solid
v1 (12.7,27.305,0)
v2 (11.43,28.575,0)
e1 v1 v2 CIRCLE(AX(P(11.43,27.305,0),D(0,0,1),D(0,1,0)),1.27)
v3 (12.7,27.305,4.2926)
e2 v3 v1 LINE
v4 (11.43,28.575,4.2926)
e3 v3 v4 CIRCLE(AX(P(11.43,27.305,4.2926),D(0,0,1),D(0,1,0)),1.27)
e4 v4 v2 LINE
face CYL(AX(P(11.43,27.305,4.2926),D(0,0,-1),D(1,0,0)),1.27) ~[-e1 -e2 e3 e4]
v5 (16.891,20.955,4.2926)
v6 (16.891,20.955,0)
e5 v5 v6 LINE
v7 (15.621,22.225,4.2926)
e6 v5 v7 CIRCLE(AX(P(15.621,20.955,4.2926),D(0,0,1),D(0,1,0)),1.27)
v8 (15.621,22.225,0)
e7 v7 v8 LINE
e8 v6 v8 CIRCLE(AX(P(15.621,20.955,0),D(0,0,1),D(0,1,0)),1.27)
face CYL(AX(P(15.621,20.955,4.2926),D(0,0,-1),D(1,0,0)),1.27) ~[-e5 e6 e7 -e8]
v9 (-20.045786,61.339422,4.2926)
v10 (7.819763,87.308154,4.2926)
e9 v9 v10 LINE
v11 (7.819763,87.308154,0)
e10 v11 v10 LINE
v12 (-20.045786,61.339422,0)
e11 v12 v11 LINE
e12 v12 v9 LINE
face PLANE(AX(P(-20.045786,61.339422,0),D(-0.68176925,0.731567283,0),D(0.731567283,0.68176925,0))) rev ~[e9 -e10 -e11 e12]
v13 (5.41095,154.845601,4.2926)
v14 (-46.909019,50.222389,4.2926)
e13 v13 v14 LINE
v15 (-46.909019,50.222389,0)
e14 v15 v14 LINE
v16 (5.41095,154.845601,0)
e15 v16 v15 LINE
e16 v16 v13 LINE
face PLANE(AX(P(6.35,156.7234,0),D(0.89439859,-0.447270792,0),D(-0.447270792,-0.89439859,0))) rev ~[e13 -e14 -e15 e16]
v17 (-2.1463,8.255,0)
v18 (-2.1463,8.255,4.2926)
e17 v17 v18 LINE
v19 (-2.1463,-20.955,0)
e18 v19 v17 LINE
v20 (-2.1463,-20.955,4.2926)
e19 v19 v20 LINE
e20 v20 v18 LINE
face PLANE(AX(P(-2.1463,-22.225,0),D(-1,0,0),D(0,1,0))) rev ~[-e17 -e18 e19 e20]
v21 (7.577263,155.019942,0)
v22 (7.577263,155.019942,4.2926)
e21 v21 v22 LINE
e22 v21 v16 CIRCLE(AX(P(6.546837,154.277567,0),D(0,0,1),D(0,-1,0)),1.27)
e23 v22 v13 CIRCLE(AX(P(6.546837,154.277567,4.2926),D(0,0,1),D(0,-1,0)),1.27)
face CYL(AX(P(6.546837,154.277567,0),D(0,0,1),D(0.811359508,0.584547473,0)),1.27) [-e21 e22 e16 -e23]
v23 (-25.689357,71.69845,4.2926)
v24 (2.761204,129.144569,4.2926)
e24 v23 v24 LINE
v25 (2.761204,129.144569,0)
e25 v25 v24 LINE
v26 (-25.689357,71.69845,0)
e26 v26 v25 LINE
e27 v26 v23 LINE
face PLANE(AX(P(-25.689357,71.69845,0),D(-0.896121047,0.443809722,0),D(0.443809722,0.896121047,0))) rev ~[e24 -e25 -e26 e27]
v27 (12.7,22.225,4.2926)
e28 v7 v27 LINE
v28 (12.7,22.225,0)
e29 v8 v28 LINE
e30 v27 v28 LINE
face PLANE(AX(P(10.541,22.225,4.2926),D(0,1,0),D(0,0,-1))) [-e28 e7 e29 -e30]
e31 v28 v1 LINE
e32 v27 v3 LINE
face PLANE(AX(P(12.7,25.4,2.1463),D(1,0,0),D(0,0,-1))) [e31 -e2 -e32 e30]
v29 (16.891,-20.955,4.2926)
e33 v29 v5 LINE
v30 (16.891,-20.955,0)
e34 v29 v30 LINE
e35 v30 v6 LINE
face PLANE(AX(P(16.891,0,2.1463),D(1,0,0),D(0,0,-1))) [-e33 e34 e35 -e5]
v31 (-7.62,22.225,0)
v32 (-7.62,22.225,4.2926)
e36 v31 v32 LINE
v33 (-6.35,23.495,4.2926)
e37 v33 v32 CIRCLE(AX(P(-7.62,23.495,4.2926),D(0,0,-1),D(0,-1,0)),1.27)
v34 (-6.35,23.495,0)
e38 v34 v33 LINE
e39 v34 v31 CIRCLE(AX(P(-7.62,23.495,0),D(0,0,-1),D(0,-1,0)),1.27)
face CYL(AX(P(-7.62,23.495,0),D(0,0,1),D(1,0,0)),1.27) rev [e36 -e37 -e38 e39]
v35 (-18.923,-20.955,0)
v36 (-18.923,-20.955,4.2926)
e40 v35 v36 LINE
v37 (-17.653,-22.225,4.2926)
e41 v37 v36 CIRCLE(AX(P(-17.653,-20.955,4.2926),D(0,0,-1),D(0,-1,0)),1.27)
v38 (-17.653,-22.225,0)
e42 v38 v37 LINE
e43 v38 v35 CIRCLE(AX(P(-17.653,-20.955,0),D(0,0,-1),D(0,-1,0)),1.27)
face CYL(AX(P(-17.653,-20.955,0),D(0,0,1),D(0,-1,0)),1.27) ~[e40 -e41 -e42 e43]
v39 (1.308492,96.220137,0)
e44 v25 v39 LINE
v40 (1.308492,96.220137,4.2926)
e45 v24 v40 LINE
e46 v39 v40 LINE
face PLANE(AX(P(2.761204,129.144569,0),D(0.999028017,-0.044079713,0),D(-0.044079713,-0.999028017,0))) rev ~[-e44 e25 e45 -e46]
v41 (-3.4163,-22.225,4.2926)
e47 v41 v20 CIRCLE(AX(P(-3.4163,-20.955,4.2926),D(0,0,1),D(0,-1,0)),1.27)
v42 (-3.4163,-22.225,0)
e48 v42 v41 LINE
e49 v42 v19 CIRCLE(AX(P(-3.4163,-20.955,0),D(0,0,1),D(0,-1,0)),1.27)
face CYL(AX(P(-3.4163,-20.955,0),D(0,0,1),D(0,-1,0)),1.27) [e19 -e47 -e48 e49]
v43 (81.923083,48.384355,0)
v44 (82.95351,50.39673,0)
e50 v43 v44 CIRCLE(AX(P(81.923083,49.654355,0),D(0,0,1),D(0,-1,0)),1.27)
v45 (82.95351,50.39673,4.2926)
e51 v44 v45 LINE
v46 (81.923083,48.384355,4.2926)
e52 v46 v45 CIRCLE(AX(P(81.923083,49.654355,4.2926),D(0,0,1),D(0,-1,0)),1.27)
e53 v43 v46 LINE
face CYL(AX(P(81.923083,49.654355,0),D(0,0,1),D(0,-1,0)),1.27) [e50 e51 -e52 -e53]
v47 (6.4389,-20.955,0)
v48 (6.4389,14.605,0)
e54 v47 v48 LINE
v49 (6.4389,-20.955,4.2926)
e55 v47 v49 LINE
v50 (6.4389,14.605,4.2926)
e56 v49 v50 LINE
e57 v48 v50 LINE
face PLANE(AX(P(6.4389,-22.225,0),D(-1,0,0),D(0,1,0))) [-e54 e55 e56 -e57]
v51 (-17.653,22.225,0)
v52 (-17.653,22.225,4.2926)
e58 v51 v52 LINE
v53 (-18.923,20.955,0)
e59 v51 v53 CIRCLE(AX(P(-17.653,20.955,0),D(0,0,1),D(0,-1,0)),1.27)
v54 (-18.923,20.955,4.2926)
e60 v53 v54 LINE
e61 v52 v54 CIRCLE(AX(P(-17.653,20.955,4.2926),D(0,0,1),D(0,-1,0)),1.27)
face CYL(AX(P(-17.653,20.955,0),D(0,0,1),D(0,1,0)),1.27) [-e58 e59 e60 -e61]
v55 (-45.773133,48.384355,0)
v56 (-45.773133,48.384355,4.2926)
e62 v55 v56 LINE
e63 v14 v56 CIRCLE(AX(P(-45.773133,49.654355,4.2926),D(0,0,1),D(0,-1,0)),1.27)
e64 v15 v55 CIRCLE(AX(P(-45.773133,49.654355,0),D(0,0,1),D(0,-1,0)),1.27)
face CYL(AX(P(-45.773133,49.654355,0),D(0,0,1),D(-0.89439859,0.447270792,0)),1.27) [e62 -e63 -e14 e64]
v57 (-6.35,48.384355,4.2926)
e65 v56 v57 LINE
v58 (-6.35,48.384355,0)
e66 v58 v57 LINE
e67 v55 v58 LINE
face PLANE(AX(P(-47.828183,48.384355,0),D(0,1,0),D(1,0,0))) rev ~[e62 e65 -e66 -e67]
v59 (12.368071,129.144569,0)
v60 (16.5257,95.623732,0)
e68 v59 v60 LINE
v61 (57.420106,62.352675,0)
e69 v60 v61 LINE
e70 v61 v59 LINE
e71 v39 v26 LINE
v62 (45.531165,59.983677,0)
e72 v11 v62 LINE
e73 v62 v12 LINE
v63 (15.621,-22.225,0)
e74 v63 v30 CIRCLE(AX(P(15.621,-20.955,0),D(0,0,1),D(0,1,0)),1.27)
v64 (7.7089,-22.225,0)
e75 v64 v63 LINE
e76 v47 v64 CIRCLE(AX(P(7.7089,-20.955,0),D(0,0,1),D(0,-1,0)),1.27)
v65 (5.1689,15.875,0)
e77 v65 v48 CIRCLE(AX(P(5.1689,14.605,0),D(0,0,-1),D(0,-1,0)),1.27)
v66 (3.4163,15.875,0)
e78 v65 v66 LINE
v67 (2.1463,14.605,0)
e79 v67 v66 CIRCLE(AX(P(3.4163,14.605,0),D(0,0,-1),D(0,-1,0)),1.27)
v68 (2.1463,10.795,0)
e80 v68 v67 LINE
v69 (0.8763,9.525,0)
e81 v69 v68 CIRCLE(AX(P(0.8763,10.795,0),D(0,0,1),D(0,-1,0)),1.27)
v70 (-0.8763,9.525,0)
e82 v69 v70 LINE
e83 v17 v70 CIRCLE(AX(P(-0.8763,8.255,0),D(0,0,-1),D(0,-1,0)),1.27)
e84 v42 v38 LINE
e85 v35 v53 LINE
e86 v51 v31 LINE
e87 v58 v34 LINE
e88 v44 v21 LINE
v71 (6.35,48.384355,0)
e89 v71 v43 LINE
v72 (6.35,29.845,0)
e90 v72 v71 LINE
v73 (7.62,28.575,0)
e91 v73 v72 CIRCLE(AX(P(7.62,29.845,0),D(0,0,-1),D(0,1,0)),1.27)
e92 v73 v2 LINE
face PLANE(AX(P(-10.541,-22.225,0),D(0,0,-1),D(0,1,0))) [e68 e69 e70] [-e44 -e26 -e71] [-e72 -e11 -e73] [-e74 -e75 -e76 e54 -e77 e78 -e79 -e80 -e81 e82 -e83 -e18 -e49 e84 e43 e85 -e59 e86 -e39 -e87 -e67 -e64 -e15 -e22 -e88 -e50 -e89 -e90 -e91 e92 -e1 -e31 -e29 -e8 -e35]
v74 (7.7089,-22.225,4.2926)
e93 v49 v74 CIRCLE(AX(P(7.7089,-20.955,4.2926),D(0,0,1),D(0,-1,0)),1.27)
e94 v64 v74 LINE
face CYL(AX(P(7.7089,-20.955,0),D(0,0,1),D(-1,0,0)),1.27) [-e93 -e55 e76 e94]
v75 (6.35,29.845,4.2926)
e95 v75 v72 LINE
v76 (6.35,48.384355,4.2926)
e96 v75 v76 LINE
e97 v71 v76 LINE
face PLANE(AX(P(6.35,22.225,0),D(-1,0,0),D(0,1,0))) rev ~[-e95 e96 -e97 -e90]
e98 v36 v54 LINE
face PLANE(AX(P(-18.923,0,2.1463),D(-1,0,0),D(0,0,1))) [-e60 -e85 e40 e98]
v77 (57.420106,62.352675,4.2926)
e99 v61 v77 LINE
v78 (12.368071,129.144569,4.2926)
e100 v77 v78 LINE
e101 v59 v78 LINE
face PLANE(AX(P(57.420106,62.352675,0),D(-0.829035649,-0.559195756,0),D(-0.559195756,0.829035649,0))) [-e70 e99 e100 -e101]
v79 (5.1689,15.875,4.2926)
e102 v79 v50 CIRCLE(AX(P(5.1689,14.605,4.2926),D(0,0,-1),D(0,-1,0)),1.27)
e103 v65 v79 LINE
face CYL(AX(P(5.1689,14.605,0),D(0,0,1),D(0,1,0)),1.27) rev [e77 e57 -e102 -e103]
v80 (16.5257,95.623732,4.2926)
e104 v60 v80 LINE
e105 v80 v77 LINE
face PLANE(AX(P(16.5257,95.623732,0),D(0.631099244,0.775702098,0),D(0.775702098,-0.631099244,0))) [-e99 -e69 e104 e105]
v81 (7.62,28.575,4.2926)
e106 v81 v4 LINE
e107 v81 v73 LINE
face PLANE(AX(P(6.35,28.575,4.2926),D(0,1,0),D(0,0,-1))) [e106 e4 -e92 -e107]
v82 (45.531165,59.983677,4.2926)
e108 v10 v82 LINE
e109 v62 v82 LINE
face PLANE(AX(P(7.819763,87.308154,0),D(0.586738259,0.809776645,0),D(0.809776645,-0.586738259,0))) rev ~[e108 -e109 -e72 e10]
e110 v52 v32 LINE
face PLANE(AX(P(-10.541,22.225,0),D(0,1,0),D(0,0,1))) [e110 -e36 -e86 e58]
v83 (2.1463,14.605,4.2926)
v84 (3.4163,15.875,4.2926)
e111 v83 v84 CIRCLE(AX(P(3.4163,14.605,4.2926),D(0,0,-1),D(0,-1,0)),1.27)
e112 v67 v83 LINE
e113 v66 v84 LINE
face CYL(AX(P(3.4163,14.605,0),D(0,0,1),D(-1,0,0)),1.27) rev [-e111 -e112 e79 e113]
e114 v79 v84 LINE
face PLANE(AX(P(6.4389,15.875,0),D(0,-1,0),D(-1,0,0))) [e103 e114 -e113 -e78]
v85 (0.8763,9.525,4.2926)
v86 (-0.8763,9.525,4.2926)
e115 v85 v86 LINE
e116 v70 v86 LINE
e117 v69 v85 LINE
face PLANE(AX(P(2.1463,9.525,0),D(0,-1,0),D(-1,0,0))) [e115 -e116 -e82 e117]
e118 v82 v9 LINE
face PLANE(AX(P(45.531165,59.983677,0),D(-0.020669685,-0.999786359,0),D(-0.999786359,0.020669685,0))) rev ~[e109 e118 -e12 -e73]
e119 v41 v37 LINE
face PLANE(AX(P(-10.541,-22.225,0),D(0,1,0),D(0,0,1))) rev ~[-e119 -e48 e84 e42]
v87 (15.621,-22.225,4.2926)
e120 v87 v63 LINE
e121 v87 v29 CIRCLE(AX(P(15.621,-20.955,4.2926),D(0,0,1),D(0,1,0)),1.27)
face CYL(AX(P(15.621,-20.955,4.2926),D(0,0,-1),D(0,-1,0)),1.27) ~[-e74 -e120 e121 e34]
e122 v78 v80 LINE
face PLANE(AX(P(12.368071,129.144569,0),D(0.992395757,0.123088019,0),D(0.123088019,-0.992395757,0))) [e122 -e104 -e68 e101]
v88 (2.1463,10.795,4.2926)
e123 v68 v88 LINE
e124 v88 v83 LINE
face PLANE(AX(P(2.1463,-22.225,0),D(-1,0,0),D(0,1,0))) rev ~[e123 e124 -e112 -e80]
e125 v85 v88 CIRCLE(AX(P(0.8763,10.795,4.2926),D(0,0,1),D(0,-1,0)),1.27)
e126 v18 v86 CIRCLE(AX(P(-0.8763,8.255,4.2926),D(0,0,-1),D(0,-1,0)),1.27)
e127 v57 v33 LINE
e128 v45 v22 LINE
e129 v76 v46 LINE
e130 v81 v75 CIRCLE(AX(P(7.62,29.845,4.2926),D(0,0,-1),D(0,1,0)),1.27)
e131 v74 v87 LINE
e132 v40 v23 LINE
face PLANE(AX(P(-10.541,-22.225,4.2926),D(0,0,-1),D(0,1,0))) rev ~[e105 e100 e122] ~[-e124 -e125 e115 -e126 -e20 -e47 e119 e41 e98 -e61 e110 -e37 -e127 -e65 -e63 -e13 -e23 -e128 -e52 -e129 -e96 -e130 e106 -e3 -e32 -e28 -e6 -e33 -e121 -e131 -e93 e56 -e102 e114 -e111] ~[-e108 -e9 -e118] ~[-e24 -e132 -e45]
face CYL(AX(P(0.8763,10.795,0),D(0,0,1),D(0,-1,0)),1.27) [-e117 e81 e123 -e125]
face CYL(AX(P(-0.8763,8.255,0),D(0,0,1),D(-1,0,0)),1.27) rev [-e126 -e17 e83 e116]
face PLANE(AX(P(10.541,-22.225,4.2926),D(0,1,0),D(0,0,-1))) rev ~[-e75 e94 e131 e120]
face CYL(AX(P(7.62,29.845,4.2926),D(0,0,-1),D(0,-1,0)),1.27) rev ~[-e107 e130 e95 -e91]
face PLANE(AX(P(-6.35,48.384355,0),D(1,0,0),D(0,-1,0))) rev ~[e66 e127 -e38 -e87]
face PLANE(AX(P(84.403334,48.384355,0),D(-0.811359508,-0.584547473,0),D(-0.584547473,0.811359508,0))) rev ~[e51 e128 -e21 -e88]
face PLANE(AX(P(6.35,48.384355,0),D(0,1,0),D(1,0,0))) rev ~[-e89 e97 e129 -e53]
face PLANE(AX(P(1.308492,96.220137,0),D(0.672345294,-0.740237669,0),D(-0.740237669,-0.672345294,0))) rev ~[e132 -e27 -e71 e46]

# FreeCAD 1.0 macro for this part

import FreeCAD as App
import Part
import Sketcher
from FreeCAD import Vector
Q = App.Units.Quantity


def edges_at(feature, points):
    """Names of the edges that pass closest to the given points."""
    edges = feature.Shape.Edges
    near = lambda p: min(range(len(edges)), key=lambda i: edges[i].distToShape(Part.Vertex(*p))[0])
    return sorted({f"Edge{near(p) + 1}" for p in points})


def add_polygon(sketch, points):
    """Adds a closed chain of lines whose ends are joined by coincident constraints."""
    first, n = sketch.GeometryCount, len(points)
    for a, b in zip(points, points[1:] + points[:1]):
        sketch.addGeometry(Part.LineSegment(App.Vector(*a, 0), App.Vector(*b, 0)), False)
    for i in range(n):
        sketch.addConstraint(Sketcher.Constraint("Coincident", first + i, 2, first + (i + 1) % n, 1))

doc = App.newDocument("Part")
body = doc.addObject("PartDesign::Body", "Body")

sketch1 = doc.addObject("Sketcher::SketchObject", "Sketch")
body.addObject(sketch1)
sketch1.AttachmentSupport = (doc.XY_Plane, [""])
sketch1.MapMode = "FlatFace"
add_polygon(sketch1, [(-6.3, 48.4), (-6.3, 22.2), (-10.5, 22.2), (-10.5, -22.2), (10.5, -22.2), (10.5, 22.2), (6.3, 22.2), (6.3, 48.4), (84.4, 48.4), (6.3, 156.7), (-47.8, 48.4)])
sketch1.addConstraint(Sketcher.Constraint("Vertical", 0))
sketch1.addConstraint(Sketcher.Constraint("Horizontal", 1))
sketch1.addConstraint(Sketcher.Constraint("Vertical", 2))
sketch1.addConstraint(Sketcher.Constraint("Horizontal", 3))
sketch1.addConstraint(Sketcher.Constraint("Vertical", 4))
sketch1.addConstraint(Sketcher.Constraint("Horizontal", 5))
sketch1.addConstraint(Sketcher.Constraint("Vertical", 6))
sketch1.addConstraint(Sketcher.Constraint("Horizontal", 7))
sketch1.addConstraint(Sketcher.Constraint("Horizontal", 10))
sketch1.addConstraint(Sketcher.Constraint("Symmetric", 1, 2, 3, 2, -1, 1))
sketch1.addConstraint(Sketcher.Constraint("Symmetric", 0, 2, 5, 2, -2))
sketch1.addConstraint(Sketcher.Constraint("Horizontal", 7, 2, 9, 2))
sketch1.addConstraint(Sketcher.Constraint("Vertical", 6, 2, 8, 2))
sketch1.addConstraint(Sketcher.Constraint("DistanceX", 3, 1, 3, 2, Q("0.83 in")))
sketch1.addConstraint(Sketcher.Constraint("DistanceY", 2, 2, 2, 1, Q("1.75 in")))
sketch1.addConstraint(Sketcher.Constraint("DistanceX", 0, 2, 5, 2, Q("0.5 in")))
sketch1.addConstraint(Sketcher.Constraint("DistanceY", -1, 1, 8, 2, Q("156.7234 mm")))
sketch1.addConstraint(Sketcher.Constraint("DistanceX", 7, 1, 7, 2, Q("78.053334 mm")))
sketch1.addConstraint(Sketcher.Constraint("DistanceX", 10, 1, 10, 2, Q("41.478183 mm")))
sketch1.addConstraint(Sketcher.Constraint("DistanceY", 0, 2, 0, 1, Q("26.159355 mm")))
pad1 = doc.addObject("PartDesign::Pad", "Pad")
body.addObject(pad1)
pad1.Profile = sketch1
pad1.Length = Q("0.169 in")

sketch2 = doc.addObject("Sketcher::SketchObject", "Sketch001")
body.addObject(sketch2)
sketch2.AttachmentSupport = (doc.XY_Plane, [""])
sketch2.MapMode = "FlatFace"
add_polygon(sketch2, [(-6, 102), (6, 102), (6, 157), (-48, 48), (-6, 48)])
sketch2.addConstraint(Sketcher.Constraint("Horizontal", 0))
sketch2.addConstraint(Sketcher.Constraint("Vertical", 1))
sketch2.addConstraint(Sketcher.Constraint("Horizontal", 3))
sketch2.addConstraint(Sketcher.Constraint("Vertical", 4))
sketch2.addConstraint(Sketcher.Constraint("DistanceX", 0, 1, 0, 2, Q("0.5 in")))
sketch2.addConstraint(Sketcher.Constraint("DistanceY", -1, 1, 0, 2, Q("4 in")))
sketch2.addConstraint(Sketcher.Constraint("DistanceX", -1, 1, 0, 2, Q("0.25 in")))
sketch2.addConstraint(Sketcher.Constraint("DistanceY", 1, 1, 1, 2, Q("55.1234 mm")))
sketch2.addConstraint(Sketcher.Constraint("DistanceX", 3, 1, 3, 2, Q("41.478183 mm")))
sketch2.addConstraint(Sketcher.Constraint("DistanceY", 4, 1, 4, 2, Q("53.215645 mm")))
pad2 = doc.addObject("PartDesign::Pad", "Pad001")
body.addObject(pad2)
pad2.Profile = sketch2
pad2.Length = Q("0.169 in")

sketch3 = doc.addObject("Sketcher::SketchObject", "Sketch002")
body.addObject(sketch3)
sketch3.AttachmentSupport = (doc.XY_Plane, [""])
sketch3.MapMode = "FlatFace"
add_polygon(sketch3, [(2.1, 9.5), (2.1, -22.2), (-2.1, -22.2), (-2.1, 9.5)])
sketch3.addConstraint(Sketcher.Constraint("Vertical", 0))
sketch3.addConstraint(Sketcher.Constraint("Horizontal", 1))
sketch3.addConstraint(Sketcher.Constraint("Vertical", 2))
sketch3.addConstraint(Sketcher.Constraint("Horizontal", 3))
sketch3.addConstraint(Sketcher.Constraint("DistanceY", 0, 2, 0, 1, Q("1.25 in")))
sketch3.addConstraint(Sketcher.Constraint("DistanceX", 1, 2, 1, 1, Q("0.169 in")))
sketch3.addConstraint(Sketcher.Constraint("DistanceY", 0, 2, -1, 1, Q("0.875 in")))
sketch3.addConstraint(Sketcher.Constraint("DistanceX", -1, 1, 0, 2, Q("0.0845 in")))
pocket1 = doc.addObject("PartDesign::Pocket", "Pocket")
body.addObject(pocket1)
pocket1.Profile = sketch3
pocket1.Length = Q("0.169 in")
pocket1.Reversed = True

sketch4 = doc.addObject("Sketcher::SketchObject", "Sketch003")
body.addObject(sketch4)
sketch4.AttachmentSupport = (doc.XY_Plane, [""])
sketch4.MapMode = "FlatFace"
add_polygon(sketch4, [(6.4, 15.9), (6.4, -22.2), (2.1, -22.2), (2.1, 15.9)])
sketch4.addConstraint(Sketcher.Constraint("Vertical", 0))
sketch4.addConstraint(Sketcher.Constraint("Horizontal", 1))
sketch4.addConstraint(Sketcher.Constraint("Vertical", 2))
sketch4.addConstraint(Sketcher.Constraint("Horizontal", 3))
sketch4.addConstraint(Sketcher.Constraint("DistanceY", 0, 2, 0, 1, Q("1.5 in")))
sketch4.addConstraint(Sketcher.Constraint("DistanceX", 1, 2, 1, 1, Q("0.169 in")))
sketch4.addConstraint(Sketcher.Constraint("DistanceY", 0, 2, -1, 1, Q("0.875 in")))
sketch4.addConstraint(Sketcher.Constraint("DistanceX", -1, 1, 0, 2, Q("0.2535 in")))
pocket2 = doc.addObject("PartDesign::Pocket", "Pocket001")
body.addObject(pocket2)
pocket2.Profile = sketch4
pocket2.Length = Q("0.169 in")
pocket2.Reversed = True

sketch5 = doc.addObject("Sketcher::SketchObject", "Sketch004")
body.addObject(sketch5)
sketch5.AttachmentSupport = (doc.YZ_Plane, [""])
sketch5.MapMode = "FlatFace"
sketch5.AttachmentOffset = App.Placement(Vector(0, 0, 0.415 * 25.4), App.Rotation())
add_polygon(sketch5, [(22.2, 4.3), (-22.2, 4.3), (-22.2, 0), (22.2, 0)])
sketch5.addConstraint(Sketcher.Constraint("Horizontal", 0))
sketch5.addConstraint(Sketcher.Constraint("Vertical", 1))
sketch5.addConstraint(Sketcher.Constraint("Horizontal", 2))
sketch5.addConstraint(Sketcher.Constraint("Vertical", 3))
sketch5.addConstraint(Sketcher.Constraint("Symmetric", 1, 2, 2, 2, -1, 1))
sketch5.addConstraint(Sketcher.Constraint("DistanceX", 0, 2, 0, 1, Q("1.75 in")))
sketch5.addConstraint(Sketcher.Constraint("DistanceY", 1, 2, 1, 1, Q("0.169 in")))
pad3 = doc.addObject("PartDesign::Pad", "Pad002")
body.addObject(pad3)
pad3.Profile = sketch5
pad3.Length = Q("0.25 in")

sketch6 = doc.addObject("Sketcher::SketchObject", "Sketch005")
body.addObject(sketch6)
sketch6.AttachmentSupport = (doc.YZ_Plane, [""])
sketch6.MapMode = "FlatFace"
sketch6.AttachmentOffset = App.Placement(Vector(0, 0, 0.25 * 25.4), App.Rotation())
add_polygon(sketch6, [(28.6, 4.3), (22.2, 4.3), (22.2, 0), (28.6, 0)])
sketch6.addConstraint(Sketcher.Constraint("Horizontal", 0))
sketch6.addConstraint(Sketcher.Constraint("Vertical", 1))
sketch6.addConstraint(Sketcher.Constraint("Horizontal", 2))
sketch6.addConstraint(Sketcher.Constraint("Vertical", 3))
sketch6.addConstraint(Sketcher.Constraint("PointOnObject", 1, 2, -1))
sketch6.addConstraint(Sketcher.Constraint("DistanceX", 0, 2, 0, 1, Q("0.25 in")))
sketch6.addConstraint(Sketcher.Constraint("DistanceY", 1, 2, 1, 1, Q("0.169 in")))
sketch6.addConstraint(Sketcher.Constraint("DistanceX", -1, 1, 0, 2, Q("0.875 in")))
pad4 = doc.addObject("PartDesign::Pad", "Pad003")
body.addObject(pad4)
pad4.Profile = sketch6
pad4.Length = Q("0.25 in")

sketch7 = doc.addObject("Sketcher::SketchObject", "Sketch006")
body.addObject(sketch7)
sketch7.AttachmentSupport = (doc.YZ_Plane, [""])
sketch7.MapMode = "FlatFace"
sketch7.AttachmentOffset = App.Placement(Vector(0, 0, -0.415 * 25.4), App.Rotation())
add_polygon(sketch7, [(22.2, 0), (-22.2, 0), (-22.2, 4.3), (22.2, 4.3)])
sketch7.addConstraint(Sketcher.Constraint("Horizontal", 0))
sketch7.addConstraint(Sketcher.Constraint("Vertical", 1))
sketch7.addConstraint(Sketcher.Constraint("Horizontal", 2))
sketch7.addConstraint(Sketcher.Constraint("Vertical", 3))
sketch7.addConstraint(Sketcher.Constraint("Symmetric", 0, 2, 3, 2, -1, 1))
sketch7.addConstraint(Sketcher.Constraint("DistanceX", 0, 2, 0, 1, Q("1.75 in")))
sketch7.addConstraint(Sketcher.Constraint("DistanceY", 1, 1, 1, 2, Q("0.169 in")))
pad5 = doc.addObject("PartDesign::Pad", "Pad004")
body.addObject(pad5)
pad5.Profile = sketch7
pad5.Length = Q("0.33 in")
pad5.Reversed = True
doc.recompute()

fillet = doc.addObject("PartDesign::Fillet", "Fillet")
body.addObject(fillet)
fillet.Base = (pad5, edges_at(pad5, [
    (2.146, 15.875, 2.146),
    (6.439, -22.225, 2.146),
    (6.439, 15.875, 2.146),
    (16.891, -22.225, 2.146),
    (16.891, 22.225, 2.146),
    (6.35, 28.575, 2.146),
    (12.7, 28.575, 2.146),
    (-18.923, -22.225, 2.146),
    (-18.923, 22.225, 2.146),
    (-6.35, 22.225, 2.146),
    (-47.828, 48.384, 2.146),
    (6.35, 156.723, 2.146),
    (84.403, 48.384, 2.146),
    (-2.146, 9.525, 2.146),
    (-2.146, -22.225, 2.146),
    (2.146, 9.525, 2.146),
]))
fillet.Radius = Q("0.05 in")

sketch8 = doc.addObject("Sketcher::SketchObject", "Sketch007")
body.addObject(sketch8)
sketch8.AttachmentSupport = (doc.XY_Plane, [""])
sketch8.MapMode = "FlatFace"
add_polygon(sketch8, [(3, 129), (1, 96), (-26, 72)])
add_polygon(sketch8, [(17, 96), (12, 129), (57, 62)])
add_polygon(sketch8, [(8, 87), (46, 60), (-20, 61)])
sketch8.addConstraint(Sketcher.Constraint("Horizontal", 2, 2, 3, 2))
sketch8.addConstraint(Sketcher.Constraint("DistanceX", -1, 1, 5, 2, Q("16.5257 mm")))
sketch8.addConstraint(Sketcher.Constraint("Distance", 2, Q("64.105312 mm")))
sketch8.addConstraint(Sketcher.Constraint("Distance", 3, Q("33.77769 mm")))
sketch8.addConstraint(Sketcher.Constraint("Distance", 6, Q("46.570129 mm")))
sketch8.addConstraint(Sketcher.Constraint("DistanceY", -1, 1, 1, 2, Q("71.69845 mm")))
sketch8.addConstraint(Sketcher.Constraint("DistanceY", -1, 1, 2, 2, Q("129.144569 mm")))
sketch8.addConstraint(Sketcher.Constraint("DistanceX", -1, 1, 3, 2, Q("12.368071 mm")))
sketch8.addConstraint(Sketcher.Constraint("DistanceY", -1, 1, 7, 2, Q("61.339422 mm")))
sketch8.addConstraint(Sketcher.Constraint("DistanceX", 1, 2, 0, 2, Q("26.997849 mm")))
sketch8.addConstraint(Sketcher.Constraint("DistanceY", 0, 2, 2, 2, Q("32.924431 mm")))
sketch8.addConstraint(Sketcher.Constraint("DistanceX", 0, 2, 3, 2, Q("11.059578 mm")))
sketch8.addConstraint(Sketcher.Constraint("DistanceY", 4, 2, 0, 2, Q("33.867462 mm")))
sketch8.addConstraint(Sketcher.Constraint("DistanceX", 6, 2, 4, 2, Q("11.88894 mm")))
sketch8.addConstraint(Sketcher.Constraint("DistanceY", 6, 2, 0, 2, Q("36.23646 mm")))
sketch8.addConstraint(Sketcher.Constraint("DistanceX", 1, 2, 7, 2, Q("5.64357 mm")))
sketch8.addConstraint(Sketcher.Constraint("DistanceX", 7, 2, 6, 2, Q("65.576952 mm")))
sketch8.addConstraint(Sketcher.Constraint("DistanceX", 0, 2, 8, 2, Q("6.51127 mm")))
pocket3 = doc.addObject("PartDesign::Pocket", "Pocket002")
body.addObject(pocket3)
pocket3.Profile = sketch8
pocket3.Length = Q("0.169 in")
pocket3.Reversed = True

doc.recompute()
